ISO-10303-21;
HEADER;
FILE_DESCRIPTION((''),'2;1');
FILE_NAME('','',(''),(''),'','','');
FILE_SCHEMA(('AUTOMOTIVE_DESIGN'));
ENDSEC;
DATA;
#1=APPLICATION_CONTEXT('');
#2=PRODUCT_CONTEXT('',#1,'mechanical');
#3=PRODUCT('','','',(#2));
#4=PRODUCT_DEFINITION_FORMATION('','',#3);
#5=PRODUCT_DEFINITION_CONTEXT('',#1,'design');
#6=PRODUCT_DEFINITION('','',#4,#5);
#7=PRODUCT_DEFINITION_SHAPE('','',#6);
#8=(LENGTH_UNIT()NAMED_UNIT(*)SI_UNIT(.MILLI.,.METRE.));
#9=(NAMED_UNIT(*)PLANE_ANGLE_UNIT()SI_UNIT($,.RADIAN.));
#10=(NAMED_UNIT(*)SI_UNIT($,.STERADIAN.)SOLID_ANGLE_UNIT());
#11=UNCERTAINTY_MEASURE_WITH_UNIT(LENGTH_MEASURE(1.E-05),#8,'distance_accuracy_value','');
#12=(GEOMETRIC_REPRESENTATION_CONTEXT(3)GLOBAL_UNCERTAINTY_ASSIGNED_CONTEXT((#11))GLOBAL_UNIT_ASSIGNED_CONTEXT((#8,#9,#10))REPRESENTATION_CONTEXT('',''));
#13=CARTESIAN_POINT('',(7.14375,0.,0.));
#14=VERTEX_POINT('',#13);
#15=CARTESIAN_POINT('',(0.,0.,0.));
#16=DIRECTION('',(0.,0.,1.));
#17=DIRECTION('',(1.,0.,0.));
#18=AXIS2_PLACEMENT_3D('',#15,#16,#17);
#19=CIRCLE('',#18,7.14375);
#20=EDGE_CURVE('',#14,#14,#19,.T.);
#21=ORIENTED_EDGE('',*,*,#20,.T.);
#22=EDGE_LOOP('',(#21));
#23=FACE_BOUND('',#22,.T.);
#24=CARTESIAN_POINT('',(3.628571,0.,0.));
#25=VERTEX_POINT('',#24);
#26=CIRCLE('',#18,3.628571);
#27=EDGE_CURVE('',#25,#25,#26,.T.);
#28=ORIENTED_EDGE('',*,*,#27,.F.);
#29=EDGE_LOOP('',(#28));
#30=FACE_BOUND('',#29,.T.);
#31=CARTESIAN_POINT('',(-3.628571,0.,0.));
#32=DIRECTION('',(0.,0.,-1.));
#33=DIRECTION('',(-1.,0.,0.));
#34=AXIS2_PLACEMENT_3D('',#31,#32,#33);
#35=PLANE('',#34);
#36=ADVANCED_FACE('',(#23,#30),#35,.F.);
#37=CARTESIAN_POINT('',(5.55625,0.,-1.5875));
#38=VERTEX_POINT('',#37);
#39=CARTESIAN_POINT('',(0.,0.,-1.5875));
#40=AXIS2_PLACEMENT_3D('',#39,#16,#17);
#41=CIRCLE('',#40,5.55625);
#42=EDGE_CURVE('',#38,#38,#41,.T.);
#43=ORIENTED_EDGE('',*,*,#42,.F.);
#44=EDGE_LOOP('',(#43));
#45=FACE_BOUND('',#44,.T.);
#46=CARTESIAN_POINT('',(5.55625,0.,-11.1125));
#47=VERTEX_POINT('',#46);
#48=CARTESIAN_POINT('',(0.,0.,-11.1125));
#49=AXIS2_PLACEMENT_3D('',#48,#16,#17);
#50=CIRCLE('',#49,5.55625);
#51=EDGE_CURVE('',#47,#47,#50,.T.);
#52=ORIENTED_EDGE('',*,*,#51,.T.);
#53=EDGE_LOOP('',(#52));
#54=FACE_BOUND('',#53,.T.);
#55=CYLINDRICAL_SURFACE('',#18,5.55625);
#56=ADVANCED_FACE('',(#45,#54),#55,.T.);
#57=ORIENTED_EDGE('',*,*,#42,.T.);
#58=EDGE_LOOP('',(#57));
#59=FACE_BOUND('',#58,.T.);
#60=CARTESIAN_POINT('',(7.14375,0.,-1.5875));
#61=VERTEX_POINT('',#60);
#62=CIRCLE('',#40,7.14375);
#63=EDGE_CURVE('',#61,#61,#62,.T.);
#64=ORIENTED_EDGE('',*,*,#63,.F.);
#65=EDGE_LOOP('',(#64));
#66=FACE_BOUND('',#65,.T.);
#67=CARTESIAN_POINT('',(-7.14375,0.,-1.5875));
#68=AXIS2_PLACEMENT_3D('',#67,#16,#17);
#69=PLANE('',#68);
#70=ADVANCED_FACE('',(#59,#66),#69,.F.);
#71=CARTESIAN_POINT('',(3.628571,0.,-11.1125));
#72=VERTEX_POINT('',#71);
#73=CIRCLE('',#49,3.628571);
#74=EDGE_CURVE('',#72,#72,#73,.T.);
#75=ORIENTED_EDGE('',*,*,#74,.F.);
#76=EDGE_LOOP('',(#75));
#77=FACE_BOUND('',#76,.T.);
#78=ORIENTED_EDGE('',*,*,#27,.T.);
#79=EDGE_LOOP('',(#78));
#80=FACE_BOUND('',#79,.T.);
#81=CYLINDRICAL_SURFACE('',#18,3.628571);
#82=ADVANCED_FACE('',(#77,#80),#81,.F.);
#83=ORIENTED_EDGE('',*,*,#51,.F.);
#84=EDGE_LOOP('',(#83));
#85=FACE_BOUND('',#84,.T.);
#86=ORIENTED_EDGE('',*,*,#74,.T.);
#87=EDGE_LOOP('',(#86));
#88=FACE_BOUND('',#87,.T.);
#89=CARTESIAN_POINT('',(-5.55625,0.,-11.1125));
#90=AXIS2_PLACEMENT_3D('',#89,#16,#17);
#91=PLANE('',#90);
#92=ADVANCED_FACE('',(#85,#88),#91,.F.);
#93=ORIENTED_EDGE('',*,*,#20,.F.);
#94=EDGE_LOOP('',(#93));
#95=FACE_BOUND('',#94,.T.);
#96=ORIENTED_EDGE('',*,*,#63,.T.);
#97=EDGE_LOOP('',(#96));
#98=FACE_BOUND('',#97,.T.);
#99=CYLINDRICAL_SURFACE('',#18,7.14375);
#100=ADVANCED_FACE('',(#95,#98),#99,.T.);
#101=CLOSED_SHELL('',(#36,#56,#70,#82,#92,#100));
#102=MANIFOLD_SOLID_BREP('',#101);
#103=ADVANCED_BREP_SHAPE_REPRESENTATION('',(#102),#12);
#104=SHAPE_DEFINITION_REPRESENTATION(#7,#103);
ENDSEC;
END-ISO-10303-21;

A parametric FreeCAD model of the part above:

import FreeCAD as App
import Part
import Sketcher
from FreeCAD import Vector
Q = App.Units.Quantity

doc = App.newDocument("Part")
body = doc.addObject("PartDesign::Body", "Body")

# Sketch on XZ plane
sketch1 = body.newObject("Sketcher::SketchObject", "Sketch")
sketch1.AttachmentSupport = (doc.getObject("XZ_Plane"), [""])
sketch1.MapMode = "FlatFace"
sketch1.addGeometry([
    Part.LineSegment(Vector(-7.14375, 0, 0), Vector(-3.628571, 0, 0)),  # 0
    Part.LineSegment(Vector(-3.628571, 0, 0), Vector(-3.628571, -11.1125, 0)),  # 1
    Part.LineSegment(Vector(-3.628571, -11.1125, 0), Vector(-5.55625, -11.1125, 0)),  # 2
    Part.LineSegment(Vector(-5.55625, -11.1125, 0), Vector(-5.55625, -1.5875, 0)),  # 3
    Part.LineSegment(Vector(-5.55625, -1.5875, 0), Vector(-7.14375, -1.5875, 0)),  # 4
    Part.LineSegment(Vector(-7.14375, -1.5875, 0), Vector(-7.14375, 0, 0)),  # 5
], False)
sketch1.addConstraint([
    Sketcher.Constraint("Coincident", 0, 2, 1, 1),
    Sketcher.Constraint("Coincident", 1, 2, 2, 1),
    Sketcher.Constraint("Coincident", 2, 2, 3, 1),
    Sketcher.Constraint("Coincident", 3, 2, 4, 1),
    Sketcher.Constraint("Coincident", 4, 2, 5, 1),
    Sketcher.Constraint("Coincident", 5, 2, 0, 1),
    Sketcher.Constraint("Horizontal", 0),
    Sketcher.Constraint("Vertical", 1),
    Sketcher.Constraint("Horizontal", 2),
    Sketcher.Constraint("Vertical", 3),
    Sketcher.Constraint("Horizontal", 4),
    Sketcher.Constraint("Vertical", 5),
    Sketcher.Constraint("PointOnObject", 0, 2, -1),
    Sketcher.Constraint("Equal", 4, 5),
    Sketcher.Constraint("DistanceX", 4, 2, 4, 1, Q("0.0625 in")),
    Sketcher.Constraint("DistanceY", 1, 2, 1, 1, Q("0.4375 in")),
    Sketcher.Constraint("DistanceX", 2, 2, -1, 1, Q("0.21875 in")),
    Sketcher.Constraint("DistanceX", 0, 1, 0, 2, 3.515179),
])
revolution = body.newObject("PartDesign::Revolution", "Revolution")
revolution.Profile = sketch1
revolution.ReferenceAxis = (sketch1, ["V_Axis"])
revolution.Angle = 360

doc.recompute()
